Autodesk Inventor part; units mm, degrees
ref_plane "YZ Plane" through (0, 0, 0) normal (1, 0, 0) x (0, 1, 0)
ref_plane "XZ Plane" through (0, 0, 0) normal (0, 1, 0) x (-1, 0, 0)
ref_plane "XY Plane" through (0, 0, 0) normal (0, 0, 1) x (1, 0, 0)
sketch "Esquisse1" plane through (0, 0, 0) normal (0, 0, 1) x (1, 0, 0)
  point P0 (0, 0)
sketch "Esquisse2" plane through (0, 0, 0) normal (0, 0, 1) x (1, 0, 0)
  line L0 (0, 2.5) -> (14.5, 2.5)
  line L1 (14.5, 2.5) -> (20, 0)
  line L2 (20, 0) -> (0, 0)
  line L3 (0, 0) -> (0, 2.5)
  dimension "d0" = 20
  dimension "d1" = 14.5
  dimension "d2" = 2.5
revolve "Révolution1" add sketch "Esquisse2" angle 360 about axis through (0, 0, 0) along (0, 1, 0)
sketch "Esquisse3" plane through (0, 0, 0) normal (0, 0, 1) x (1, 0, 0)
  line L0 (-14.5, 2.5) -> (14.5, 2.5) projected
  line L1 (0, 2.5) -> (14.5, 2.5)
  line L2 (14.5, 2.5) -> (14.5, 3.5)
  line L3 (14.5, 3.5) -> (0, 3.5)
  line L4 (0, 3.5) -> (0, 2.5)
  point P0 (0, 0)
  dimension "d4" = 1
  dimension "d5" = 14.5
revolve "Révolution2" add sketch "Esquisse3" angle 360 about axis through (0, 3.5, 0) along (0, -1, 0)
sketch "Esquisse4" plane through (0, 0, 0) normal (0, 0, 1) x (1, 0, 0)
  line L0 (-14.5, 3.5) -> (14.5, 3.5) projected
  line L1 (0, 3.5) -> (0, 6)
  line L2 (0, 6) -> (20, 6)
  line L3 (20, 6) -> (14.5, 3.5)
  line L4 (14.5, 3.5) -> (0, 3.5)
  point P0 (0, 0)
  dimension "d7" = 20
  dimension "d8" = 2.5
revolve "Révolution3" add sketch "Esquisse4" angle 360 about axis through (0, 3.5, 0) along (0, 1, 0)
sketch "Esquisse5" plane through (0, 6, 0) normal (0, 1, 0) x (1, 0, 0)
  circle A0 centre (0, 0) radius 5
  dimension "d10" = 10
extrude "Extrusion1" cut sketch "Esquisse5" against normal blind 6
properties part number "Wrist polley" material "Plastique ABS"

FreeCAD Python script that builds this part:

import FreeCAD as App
import Part
import Sketcher

V = App.Vector


def add_polygon(sketch, points):
    """Adds a closed chain of lines whose ends are joined by coincident constraints."""
    first, n = sketch.GeometryCount, len(points)
    for a, b in zip(points, points[1:] + points[:1]):
        sketch.addGeometry(Part.LineSegment(App.Vector(*a, 0), App.Vector(*b, 0)), False)
    for i in range(n):
        sketch.addConstraint(Sketcher.Constraint("Coincident", first + i, 2, first + (i + 1) % n, 1))

doc = App.newDocument("Part")
body = doc.addObject("PartDesign::Body", "Body")

sketch1 = doc.addObject("Sketcher::SketchObject", "Sketch")
body.addObject(sketch1)
sketch1.AttachmentSupport = (doc.XY_Plane, [""])
sketch1.MapMode = "FlatFace"
add_polygon(sketch1, [(14.5, 2.5), (0, 2.5), (0, 0), (20, 0)])
sketch1.addConstraint([
    Sketcher.Constraint("Horizontal", 0),
    Sketcher.Constraint("Vertical", 1),
    Sketcher.Constraint("Horizontal", 2),
    Sketcher.Constraint("Coincident", 1, 2, -1, 1),
    Sketcher.Constraint("DistanceX", 2, 1, 2, 2, 20.0),
    Sketcher.Constraint("DistanceX", 0, 2, 0, 1, 14.5),
    Sketcher.Constraint("DistanceY", 1, 2, 1, 1, 2.5),
])
revolution = doc.addObject("PartDesign::Revolution", "Revolution")
body.addObject(revolution)
revolution.Profile = sketch1
revolution.ReferenceAxis = (sketch1, ["V_Axis"])
revolution.Angle = 360

sketch2 = doc.addObject("Sketcher::SketchObject", "Sketch001")
body.addObject(sketch2)
sketch2.AttachmentSupport = (doc.XY_Plane, [""])
sketch2.MapMode = "FlatFace"
add_polygon(sketch2, [(0, 3.5), (0, 2.5), (14.5, 2.5), (14.5, 3.5)])
sketch2.addConstraint([
    Sketcher.Constraint("Vertical", 0),
    Sketcher.Constraint("Horizontal", 1),
    Sketcher.Constraint("Vertical", 2),
    Sketcher.Constraint("Horizontal", 3),
    Sketcher.Constraint("PointOnObject", 0, 2, -2),
    Sketcher.Constraint("DistanceY", 0, 2, 0, 1, 1.0),
    Sketcher.Constraint("DistanceX", 1, 1, 1, 2, 14.5),
    Sketcher.Constraint("DistanceY", -1, 1, 0, 2, 2.5),
])
revolution2 = doc.addObject("PartDesign::Revolution", "Revolution001")
body.addObject(revolution2)
revolution2.Profile = sketch2
revolution2.ReferenceAxis = (sketch2, ["V_Axis"])
revolution2.Angle = 360

sketch3 = doc.addObject("Sketcher::SketchObject", "Sketch002")
body.addObject(sketch3)
sketch3.AttachmentSupport = (doc.XY_Plane, [""])
sketch3.MapMode = "FlatFace"
add_polygon(sketch3, [(0, 6), (0, 3.5), (14.5, 3.5), (20, 6)])
sketch3.addConstraint([
    Sketcher.Constraint("Vertical", 0),
    Sketcher.Constraint("Horizontal", 1),
    Sketcher.Constraint("Horizontal", 3),
    Sketcher.Constraint("PointOnObject", 0, 2, -2),
    Sketcher.Constraint("DistanceX", 3, 2, 3, 1, 20.0),
    Sketcher.Constraint("DistanceY", 0, 2, 0, 1, 2.5),
    Sketcher.Constraint("DistanceX", 1, 1, 1, 2, 14.5),
    Sketcher.Constraint("DistanceY", -1, 1, 2, 2, 6.0),
])
revolution3 = doc.addObject("PartDesign::Revolution", "Revolution002")
body.addObject(revolution3)
revolution3.Profile = sketch3
revolution3.ReferenceAxis = (sketch3, ["V_Axis"])
revolution3.Angle = 360

sketch4 = doc.addObject("Sketcher::SketchObject", "Sketch003")
body.addObject(sketch4)
sketch4.AttachmentSupport = (doc.XZ_Plane, [""])
sketch4.MapMode = "FlatFace"
sketch4.AttachmentOffset = App.Placement(V(0, 0, -6), App.Rotation())
sketch4.addGeometry(Part.Circle(V(0, 0, 0), V(0, 0, 1), 5), False)
sketch4.addConstraint([
    Sketcher.Constraint("Coincident", 0, 3, -1, 1),
    Sketcher.Constraint("Diameter", 0, 10.0),
])
pocket1 = doc.addObject("PartDesign::Pocket", "Pocket")
body.addObject(pocket1)
pocket1.Profile = sketch4
pocket1.Length = 6
pocket1.Reversed = True

doc.recompute()
